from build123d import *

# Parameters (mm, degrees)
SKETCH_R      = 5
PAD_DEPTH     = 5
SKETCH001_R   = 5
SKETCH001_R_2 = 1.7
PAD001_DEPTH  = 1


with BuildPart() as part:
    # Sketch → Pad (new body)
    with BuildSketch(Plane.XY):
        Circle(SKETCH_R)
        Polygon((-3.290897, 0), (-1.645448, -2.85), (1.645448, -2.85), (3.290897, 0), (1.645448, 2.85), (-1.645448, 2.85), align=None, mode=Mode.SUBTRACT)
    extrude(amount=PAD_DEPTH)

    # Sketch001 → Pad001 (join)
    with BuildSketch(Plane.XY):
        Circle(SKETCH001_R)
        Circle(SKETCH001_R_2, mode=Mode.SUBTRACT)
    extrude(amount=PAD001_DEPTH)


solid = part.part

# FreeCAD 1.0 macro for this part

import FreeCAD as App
import Part
import Sketcher

V = App.Vector
Q = App.Units.Quantity

doc = App.newDocument("Part")
body = doc.addObject("PartDesign::Body", "Body")

# Sketch on XY plane
sketch1 = body.newObject("Sketcher::SketchObject", "Sketch")
sketch1.AttachmentSupport = (doc.getObject("XY_Plane"), [""])
sketch1.MapMode = "FlatFace"
sketch1.addGeometry(Part.Circle(V(0, 0, 0), V(0, 0, 1), 5), False)
sketch1.addGeometry(Part.LineSegment(V(-1.6, -2.9, 0), V(-3.3, 0, 0)), False)
sketch1.addGeometry(Part.LineSegment(V(-3.3, 0, 0), V(-1.6, 2.9, 0)), False)
sketch1.addGeometry(Part.LineSegment(V(-1.6, 2.9, 0), V(1.6, 2.9, 0)), False)
sketch1.addGeometry(Part.LineSegment(V(1.6, 2.9, 0), V(3.3, 0, 0)), False)
sketch1.addGeometry(Part.LineSegment(V(3.3, 0, 0), V(1.6, -2.9, 0)), False)
sketch1.addGeometry(Part.LineSegment(V(1.6, -2.9, 0), V(-1.6, -2.9, 0)), False)
sketch1.addConstraint(Sketcher.Constraint("Coincident", 1, 2, 2, 1))
sketch1.addConstraint(Sketcher.Constraint("Coincident", 2, 2, 3, 1))
sketch1.addConstraint(Sketcher.Constraint("Coincident", 3, 2, 4, 1))
sketch1.addConstraint(Sketcher.Constraint("Coincident", 4, 2, 5, 1))
sketch1.addConstraint(Sketcher.Constraint("Coincident", 5, 2, 6, 1))
sketch1.addConstraint(Sketcher.Constraint("Coincident", 6, 2, 1, 1))
sketch1.addConstraint(Sketcher.Constraint("Horizontal", 3))
sketch1.addConstraint(Sketcher.Constraint("Horizontal", 6))
sketch1.addConstraint(Sketcher.Constraint("Coincident", 0, 3, -1, 1))
sketch1.addConstraint(Sketcher.Constraint("Symmetric", 1, 2, 4, 2, -1, 1))
sketch1.addConstraint(Sketcher.Constraint("Symmetric", 2, 2, 5, 2, -1, 1))
sketch1.addConstraint(Sketcher.Constraint("PointOnObject", 1, 2, -1))
sketch1.addConstraint(Sketcher.Constraint("Parallel", 1, 4))
sketch1.addConstraint(Sketcher.Constraint("Vertical", 3, 2, 5, 2))
sketch1.addConstraint(Sketcher.Constraint("Diameter", 0, Q("10 mm")))
sketch1.addConstraint(Sketcher.Constraint("Angle", 1, Q("120.000011 deg")))
sketch1.addConstraint(Sketcher.Constraint("DistanceY", 5, 2, 3, 2, Q("5.7 mm")))
sketch1.addConstraint(Sketcher.Constraint("DistanceX", 3, 1, 3, 2, Q("3.290896 mm")))
pad1 = body.newObject("PartDesign::Pad", "Pad")
pad1.Profile = sketch1
pad1.Length = 5

# Sketch on XY plane
sketch2 = body.newObject("Sketcher::SketchObject", "Sketch001")
sketch2.AttachmentSupport = (doc.getObject("XY_Plane"), [""])
sketch2.MapMode = "FlatFace"
sketch2.addGeometry(Part.Circle(V(0, 0, 0), V(0, 0, 1), 5), False)
sketch2.addGeometry(Part.Circle(V(0, 0, 0), V(0, 0, 1), 1.7), False)
sketch2.addConstraint(Sketcher.Constraint("Coincident", 0, 3, -1, 1))
sketch2.addConstraint(Sketcher.Constraint("Coincident", 1, 3, -1, 1))
sketch2.addConstraint(Sketcher.Constraint("Diameter", 0, Q("10 mm")))
sketch2.addConstraint(Sketcher.Constraint("Diameter", 1, Q("3.4 mm")))
pad2 = body.newObject("PartDesign::Pad", "Pad001")
pad2.Profile = sketch2
pad2.Length = 1

doc.recompute()
